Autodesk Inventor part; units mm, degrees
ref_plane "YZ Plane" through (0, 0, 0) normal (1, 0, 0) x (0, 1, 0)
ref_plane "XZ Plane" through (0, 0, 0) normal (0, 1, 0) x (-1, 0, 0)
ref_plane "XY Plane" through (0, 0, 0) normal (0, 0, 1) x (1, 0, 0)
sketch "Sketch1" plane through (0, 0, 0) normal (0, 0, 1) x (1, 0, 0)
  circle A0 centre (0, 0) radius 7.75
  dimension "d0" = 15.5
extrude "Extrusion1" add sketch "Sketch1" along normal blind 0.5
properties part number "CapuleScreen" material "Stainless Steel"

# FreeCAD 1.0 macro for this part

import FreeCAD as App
import Part
import Sketcher
Q = App.Units.Quantity

doc = App.newDocument("Part")
body = doc.addObject("PartDesign::Body", "Body")

sketch1 = body.newObject("Sketcher::SketchObject", "Sketch")
sketch1.AttachmentSupport = (doc.getObject("XY_Plane"), [""])
sketch1.MapMode = "FlatFace"
sketch1.addGeometry(Part.Circle(App.Vector(0, 0, 0), App.Vector(0, 0, 1), 8), False)
sketch1.addConstraint([
    Sketcher.Constraint("Coincident", 0, 3, -1, 1),
    Sketcher.Constraint("Diameter", 0, Q("15.5 mm")),
])
pad1 = body.newObject("PartDesign::Pad", "Pad")
pad1.Profile = sketch1
pad1.Length = 0.5

doc.recompute()
